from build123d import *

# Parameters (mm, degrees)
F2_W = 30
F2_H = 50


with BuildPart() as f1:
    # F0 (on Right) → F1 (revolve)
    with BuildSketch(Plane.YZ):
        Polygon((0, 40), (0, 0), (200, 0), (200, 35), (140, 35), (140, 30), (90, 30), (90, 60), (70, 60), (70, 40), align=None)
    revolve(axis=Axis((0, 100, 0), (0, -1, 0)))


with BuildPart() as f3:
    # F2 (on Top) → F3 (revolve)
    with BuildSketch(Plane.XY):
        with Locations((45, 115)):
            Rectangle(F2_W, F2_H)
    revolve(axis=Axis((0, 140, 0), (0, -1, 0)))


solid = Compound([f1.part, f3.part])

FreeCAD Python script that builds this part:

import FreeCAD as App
import Part
import Sketcher

doc = App.newDocument("Part")
params = doc.addObject("Spreadsheet::Sheet", "Params")
for row, (alias, value) in enumerate([
    ("sketch1_width", "200 mm"),
    ("sketch1_width2", "60 mm"),
    ("sketch1_width3", "50 mm"),
    ("sketch1_width4", "20 mm"),
    ("sketch1_height", "40 mm"),
    ("revolution_angle", "360 deg"),
    ("sketch2_width", "30 mm"),
    ("sketch2_height", "50 mm"),
    ("revolution2_angle", "360 deg"),
], start=1):
    params.set(f"A{row}", alias)
    params.set(f"B{row}", "=" + value)
    params.setAlias(f"B{row}", alias)

body = doc.addObject("PartDesign::Body", "Body")

sketch1 = doc.addObject("Sketcher::SketchObject", "Sketch")
body.addObject(sketch1)
sketch1.AttachmentSupport = (doc.YZ_Plane, [""])
sketch1.MapMode = "FlatFace"
sketch1.addGeometry(Part.LineSegment(App.Vector(0, 40, 0), App.Vector(0, 0, 0)), False)
sketch1.addGeometry(Part.LineSegment(App.Vector(0, 0, 0), App.Vector(200, 0, 0)), False)
sketch1.addGeometry(Part.LineSegment(App.Vector(200, 0, 0), App.Vector(200, 35, 0)), False)
sketch1.addGeometry(Part.LineSegment(App.Vector(200, 35, 0), App.Vector(140, 35, 0)), False)
sketch1.addGeometry(Part.LineSegment(App.Vector(140, 35, 0), App.Vector(140, 30, 0)), False)
sketch1.addGeometry(Part.LineSegment(App.Vector(140, 30, 0), App.Vector(90, 30, 0)), False)
sketch1.addGeometry(Part.LineSegment(App.Vector(90, 30, 0), App.Vector(90, 60, 0)), False)
sketch1.addGeometry(Part.LineSegment(App.Vector(90, 60, 0), App.Vector(70, 60, 0)), False)
sketch1.addGeometry(Part.LineSegment(App.Vector(70, 60, 0), App.Vector(70, 40, 0)), False)
sketch1.addGeometry(Part.LineSegment(App.Vector(70, 40, 0), App.Vector(0, 40, 0)), False)
sketch1.addConstraint(Sketcher.Constraint("Coincident", 0, 2, 1, 1))
sketch1.addConstraint(Sketcher.Constraint("Coincident", 1, 2, 2, 1))
sketch1.addConstraint(Sketcher.Constraint("Coincident", 2, 2, 3, 1))
sketch1.addConstraint(Sketcher.Constraint("Coincident", 3, 2, 4, 1))
sketch1.addConstraint(Sketcher.Constraint("Coincident", 4, 2, 5, 1))
sketch1.addConstraint(Sketcher.Constraint("Coincident", 5, 2, 6, 1))
sketch1.addConstraint(Sketcher.Constraint("Coincident", 6, 2, 7, 1))
sketch1.addConstraint(Sketcher.Constraint("Coincident", 7, 2, 8, 1))
sketch1.addConstraint(Sketcher.Constraint("Coincident", 8, 2, 9, 1))
sketch1.addConstraint(Sketcher.Constraint("Coincident", 9, 2, 0, 1))
sketch1.addConstraint(Sketcher.Constraint("Vertical", 0))
sketch1.addConstraint(Sketcher.Constraint("Horizontal", 1))
sketch1.addConstraint(Sketcher.Constraint("Vertical", 2))
sketch1.addConstraint(Sketcher.Constraint("Horizontal", 3))
sketch1.addConstraint(Sketcher.Constraint("Vertical", 4))
sketch1.addConstraint(Sketcher.Constraint("Horizontal", 5))
sketch1.addConstraint(Sketcher.Constraint("Vertical", 6))
sketch1.addConstraint(Sketcher.Constraint("Horizontal", 7))
sketch1.addConstraint(Sketcher.Constraint("Vertical", 8))
sketch1.addConstraint(Sketcher.Constraint("Horizontal", 9))
sketch1.addConstraint(Sketcher.Constraint("Coincident", 0, 2, -1, 1))
sketch1.addConstraint(Sketcher.Constraint("Equal", 7, 8))
sketch1.addConstraint(Sketcher.Constraint("DistanceX", 1, 1, 1, 2, 200.0))
sketch1.addConstraint(Sketcher.Constraint("DistanceX", 3, 2, 3, 1, 60.0))
sketch1.addConstraint(Sketcher.Constraint("DistanceX", 5, 2, 5, 1, 50.0))
sketch1.addConstraint(Sketcher.Constraint("DistanceX", 7, 2, 7, 1, 20.0))
sketch1.addConstraint(Sketcher.Constraint("DistanceY", 0, 2, 0, 1, 40.0))
sketch1.addConstraint(Sketcher.Constraint("DistanceY", 2, 1, 2, 2, 35.0))
sketch1.addConstraint(Sketcher.Constraint("DistanceY", 4, 2, 4, 1, 5.0))
sketch1.setExpression("Constraints[22]", "Params.sketch1_width")
sketch1.setExpression("Constraints[23]", "Params.sketch1_width2")
sketch1.setExpression("Constraints[24]", "Params.sketch1_width3")
sketch1.setExpression("Constraints[25]", "Params.sketch1_width4")
sketch1.setExpression("Constraints[26]", "Params.sketch1_height")
revolution = doc.addObject("PartDesign::Revolution", "Revolution")
body.addObject(revolution)
revolution.Profile = sketch1
revolution.ReferenceAxis = (sketch1, ["H_Axis"])
revolution.setExpression("Angle", "Params.revolution_angle")
body2 = doc.addObject("PartDesign::Body", "Body001")

sketch2 = doc.addObject("Sketcher::SketchObject", "Sketch001")
body2.addObject(sketch2)
sketch2.AttachmentSupport = (doc.getObject("XY_Plane001"), [""])
sketch2.MapMode = "FlatFace"
sketch2.addGeometry(Part.LineSegment(App.Vector(30, 140, 0), App.Vector(30, 90, 0)), False)
sketch2.addGeometry(Part.LineSegment(App.Vector(30, 90, 0), App.Vector(60, 90, 0)), False)
sketch2.addGeometry(Part.LineSegment(App.Vector(60, 90, 0), App.Vector(60, 140, 0)), False)
sketch2.addGeometry(Part.LineSegment(App.Vector(60, 140, 0), App.Vector(30, 140, 0)), False)
sketch2.addConstraint(Sketcher.Constraint("Coincident", 0, 2, 1, 1))
sketch2.addConstraint(Sketcher.Constraint("Coincident", 1, 2, 2, 1))
sketch2.addConstraint(Sketcher.Constraint("Coincident", 2, 2, 3, 1))
sketch2.addConstraint(Sketcher.Constraint("Coincident", 3, 2, 0, 1))
sketch2.addConstraint(Sketcher.Constraint("Vertical", 0))
sketch2.addConstraint(Sketcher.Constraint("Horizontal", 1))
sketch2.addConstraint(Sketcher.Constraint("Vertical", 2))
sketch2.addConstraint(Sketcher.Constraint("Horizontal", 3))
sketch2.addConstraint(Sketcher.Constraint("DistanceX", 1, 1, 1, 2, 30.0))
sketch2.addConstraint(Sketcher.Constraint("DistanceY", 0, 2, 0, 1, 50.0))
sketch2.addConstraint(Sketcher.Constraint("DistanceX", -1, 1, 0, 2, 30.0))
sketch2.addConstraint(Sketcher.Constraint("DistanceY", -1, 1, 0, 2, 90.0))
sketch2.setExpression("Constraints[8]", "Params.sketch2_width")
sketch2.setExpression("Constraints[9]", "Params.sketch2_height")
revolution2 = doc.addObject("PartDesign::Revolution", "Revolution001")
body2.addObject(revolution2)
revolution2.Profile = sketch2
revolution2.ReferenceAxis = (sketch2, ["V_Axis"])
revolution2.setExpression("Angle", "Params.revolution2_angle")

doc.recompute()
